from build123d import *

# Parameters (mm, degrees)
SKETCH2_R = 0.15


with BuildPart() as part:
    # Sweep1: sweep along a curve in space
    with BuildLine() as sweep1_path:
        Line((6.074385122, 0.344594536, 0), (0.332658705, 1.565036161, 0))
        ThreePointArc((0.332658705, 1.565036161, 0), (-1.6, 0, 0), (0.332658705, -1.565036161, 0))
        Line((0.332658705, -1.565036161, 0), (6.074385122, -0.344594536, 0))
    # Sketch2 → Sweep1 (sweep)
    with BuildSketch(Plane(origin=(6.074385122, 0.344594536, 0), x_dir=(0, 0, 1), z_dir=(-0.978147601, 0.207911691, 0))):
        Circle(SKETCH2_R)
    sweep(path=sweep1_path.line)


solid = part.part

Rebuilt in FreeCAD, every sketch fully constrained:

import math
import FreeCAD as App
import Part
import Sketcher
from FreeCAD import Vector
Q = App.Units.Quantity

doc = App.newDocument("Part")
body = doc.addObject("PartDesign::Body", "Body")

sketch1 = doc.addObject("Sketcher::SketchObject", "Sketch")
body.addObject(sketch1)
sketch1.Placement = App.Placement(Vector(6.074385, 0.344595, 0), App.Rotation(Vector(0, 0, 1), Vector(0.207911691, 0.978147601, 0), Vector(-0.978147601, 0.207911691, 0), "ZXY"))
sketch1.addGeometry(Part.Circle(Vector(0, 0, 0), Vector(0, 0, 1), 0.15), False)
sketch1.addConstraint([
    Sketcher.Constraint("Coincident", 0, 3, -1, 1),
    Sketcher.Constraint("Diameter", 0, 0.3),
])

sketch2 = doc.addObject("Sketcher::SketchObject", "Sketch001")
body.addObject(sketch2)
sketch2.AttachmentSupport = (doc.XY_Plane, [""])
sketch2.MapMode = "FlatFace"
sketch2.addGeometry([
    Part.LineSegment(Vector(6.1, 0.3, 0), Vector(0.3, 1.6, 0)),
    Part.ArcOfCircle(Part.Circle(Vector(0, 0, 0), Vector(0, 0, 1), 1.6), math.radians(78), math.radians(282)),
    Part.LineSegment(Vector(0.3, -1.6, 0), Vector(6.1, -0.3, 0)),
], False)
sketch2.addConstraint([
    Sketcher.Constraint("Tangent", 0, 2, 1, 1),
    Sketcher.Constraint("Tangent", 1, 2, 2, 1),
    Sketcher.Constraint("Coincident", 1, 3, -1, 1),
    Sketcher.Constraint("Symmetric", 0, 1, 2, 2, -1),
    Sketcher.Constraint("Radius", 1, 1.6),
    Sketcher.Constraint("Angle", 0, Q("168 deg")),
    Sketcher.Constraint("Distance", 0, 5.87),
])
doc.recompute()

additivepipe = doc.addObject("PartDesign::AdditivePipe", "AdditivePipe")
body.addObject(additivepipe)
additivepipe.Profile = sketch1
additivepipe.Spine = (sketch2, ["Edge1", "Edge2", "Edge3"])

doc.recompute()
